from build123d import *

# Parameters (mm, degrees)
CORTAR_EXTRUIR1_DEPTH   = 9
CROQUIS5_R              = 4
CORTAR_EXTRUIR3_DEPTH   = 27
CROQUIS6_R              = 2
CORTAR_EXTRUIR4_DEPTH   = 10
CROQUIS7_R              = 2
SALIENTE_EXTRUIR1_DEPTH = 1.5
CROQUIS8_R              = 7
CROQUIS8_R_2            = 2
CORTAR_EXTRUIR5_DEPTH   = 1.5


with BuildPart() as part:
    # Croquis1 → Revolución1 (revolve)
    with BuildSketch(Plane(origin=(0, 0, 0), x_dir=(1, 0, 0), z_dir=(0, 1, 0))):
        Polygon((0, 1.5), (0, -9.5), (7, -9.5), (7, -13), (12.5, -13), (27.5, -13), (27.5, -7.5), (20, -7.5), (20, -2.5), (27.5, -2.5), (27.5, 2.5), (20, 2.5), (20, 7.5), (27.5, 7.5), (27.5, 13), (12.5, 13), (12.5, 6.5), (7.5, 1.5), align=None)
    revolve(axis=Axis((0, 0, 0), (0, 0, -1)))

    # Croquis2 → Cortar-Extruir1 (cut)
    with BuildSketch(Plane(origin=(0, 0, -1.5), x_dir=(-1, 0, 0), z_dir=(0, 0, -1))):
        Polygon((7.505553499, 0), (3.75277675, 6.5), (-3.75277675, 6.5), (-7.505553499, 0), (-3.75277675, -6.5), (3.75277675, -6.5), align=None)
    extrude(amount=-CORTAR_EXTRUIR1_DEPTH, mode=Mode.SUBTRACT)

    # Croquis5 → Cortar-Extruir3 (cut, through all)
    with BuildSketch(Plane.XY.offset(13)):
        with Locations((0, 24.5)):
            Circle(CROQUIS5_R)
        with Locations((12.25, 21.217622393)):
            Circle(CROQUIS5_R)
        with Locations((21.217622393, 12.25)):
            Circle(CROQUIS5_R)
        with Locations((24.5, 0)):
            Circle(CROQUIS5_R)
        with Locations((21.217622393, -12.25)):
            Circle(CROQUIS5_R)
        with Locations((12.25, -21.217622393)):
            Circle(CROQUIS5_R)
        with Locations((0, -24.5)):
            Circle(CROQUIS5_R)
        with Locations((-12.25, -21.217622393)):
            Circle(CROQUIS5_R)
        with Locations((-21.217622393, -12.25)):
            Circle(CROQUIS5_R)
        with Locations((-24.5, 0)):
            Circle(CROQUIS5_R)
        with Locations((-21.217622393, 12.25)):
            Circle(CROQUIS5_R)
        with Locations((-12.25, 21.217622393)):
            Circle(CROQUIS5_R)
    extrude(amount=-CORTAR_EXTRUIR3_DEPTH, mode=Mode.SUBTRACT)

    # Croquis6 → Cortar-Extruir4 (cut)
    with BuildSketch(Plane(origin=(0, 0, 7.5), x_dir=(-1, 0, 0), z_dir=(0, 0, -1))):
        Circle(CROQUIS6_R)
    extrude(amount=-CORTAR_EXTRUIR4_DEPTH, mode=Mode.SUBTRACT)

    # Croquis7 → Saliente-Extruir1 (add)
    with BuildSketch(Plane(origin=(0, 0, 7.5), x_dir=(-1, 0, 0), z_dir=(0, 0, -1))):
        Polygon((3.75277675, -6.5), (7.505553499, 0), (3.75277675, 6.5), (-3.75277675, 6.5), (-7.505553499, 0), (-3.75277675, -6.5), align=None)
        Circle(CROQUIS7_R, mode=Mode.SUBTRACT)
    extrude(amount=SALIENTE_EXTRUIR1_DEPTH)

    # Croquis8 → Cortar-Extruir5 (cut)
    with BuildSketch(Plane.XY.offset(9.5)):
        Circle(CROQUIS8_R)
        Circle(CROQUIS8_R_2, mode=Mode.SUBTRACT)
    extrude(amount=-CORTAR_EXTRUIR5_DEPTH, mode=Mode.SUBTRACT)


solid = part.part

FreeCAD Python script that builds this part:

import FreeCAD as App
import Part
import Sketcher
from FreeCAD import Vector
Q = App.Units.Quantity

doc = App.newDocument("Part")
body = doc.addObject("PartDesign::Body", "Body")

# Sketch on XZ plane
sketch1 = body.newObject("Sketcher::SketchObject", "Sketch")
sketch1.AttachmentSupport = (doc.getObject("XZ_Plane"), [""])
sketch1.MapMode = "FlatFace"
sketch1.addGeometry([
    Part.LineSegment(Vector(0, -1.5, 0), Vector(0, 9.5, 0)),  # 0
    Part.LineSegment(Vector(0, 9.5, 0), Vector(7, 9.5, 0)),  # 1
    Part.LineSegment(Vector(7, 9.5, 0), Vector(7, 13, 0)),  # 2
    Part.LineSegment(Vector(7, 13, 0), Vector(27.5, 13, 0)),  # 3
    Part.LineSegment(Vector(27.5, 13, 0), Vector(27.5, 7.5, 0)),  # 4
    Part.LineSegment(Vector(27.5, 7.5, 0), Vector(20, 7.5, 0)),  # 5
    Part.LineSegment(Vector(20, 7.5, 0), Vector(20, 2.5, 0)),  # 6
    Part.LineSegment(Vector(20, 2.5, 0), Vector(27.5, 2.5, 0)),  # 7
    Part.LineSegment(Vector(27.5, 2.5, 0), Vector(27.5, -2.5, 0)),  # 8
    Part.LineSegment(Vector(27.5, -2.5, 0), Vector(20, -2.5, 0)),  # 9
    Part.LineSegment(Vector(20, -2.5, 0), Vector(20, -7.5, 0)),  # 10
    Part.LineSegment(Vector(20, -7.5, 0), Vector(27.5, -7.5, 0)),  # 11
    Part.LineSegment(Vector(27.5, -7.5, 0), Vector(27.5, -13, 0)),  # 12
    Part.LineSegment(Vector(27.5, -13, 0), Vector(12.5, -13, 0)),  # 13
    Part.LineSegment(Vector(12.5, -13, 0), Vector(12.5, -6.5, 0)),  # 14
    Part.LineSegment(Vector(12.5, -6.5, 0), Vector(7.5, -1.5, 0)),  # 15
    Part.LineSegment(Vector(7.5, -1.5, 0), Vector(0, -1.5, 0)),  # 16
], False)
sketch1.addConstraint([
    Sketcher.Constraint("Coincident", 0, 2, 1, 1),
    Sketcher.Constraint("Coincident", 1, 2, 2, 1),
    Sketcher.Constraint("Coincident", 2, 2, 3, 1),
    Sketcher.Constraint("Coincident", 3, 2, 4, 1),
    Sketcher.Constraint("Coincident", 4, 2, 5, 1),
    Sketcher.Constraint("Coincident", 5, 2, 6, 1),
    Sketcher.Constraint("Coincident", 6, 2, 7, 1),
    Sketcher.Constraint("Coincident", 7, 2, 8, 1),
    Sketcher.Constraint("Coincident", 8, 2, 9, 1),
    Sketcher.Constraint("Coincident", 9, 2, 10, 1),
    Sketcher.Constraint("Coincident", 10, 2, 11, 1),
    Sketcher.Constraint("Coincident", 11, 2, 12, 1),
    Sketcher.Constraint("Coincident", 12, 2, 13, 1),
    Sketcher.Constraint("Coincident", 13, 2, 14, 1),
    Sketcher.Constraint("Coincident", 14, 2, 15, 1),
    Sketcher.Constraint("Coincident", 15, 2, 16, 1),
    Sketcher.Constraint("Coincident", 16, 2, 0, 1),
    Sketcher.Constraint("Vertical", 0),
    Sketcher.Constraint("Horizontal", 1),
    Sketcher.Constraint("Vertical", 2),
    Sketcher.Constraint("Horizontal", 3),
    Sketcher.Constraint("Vertical", 4),
    Sketcher.Constraint("Horizontal", 5),
    Sketcher.Constraint("Vertical", 6),
    Sketcher.Constraint("Horizontal", 7),
    Sketcher.Constraint("Vertical", 8),
    Sketcher.Constraint("Horizontal", 9),
    Sketcher.Constraint("Vertical", 10),
    Sketcher.Constraint("Horizontal", 11),
    Sketcher.Constraint("Vertical", 12),
    Sketcher.Constraint("Horizontal", 13),
    Sketcher.Constraint("Vertical", 14),
    Sketcher.Constraint("Horizontal", 16),
    Sketcher.Constraint("Symmetric", 6, 2, 9, 2, -1),
    Sketcher.Constraint("Symmetric", 4, 2, 11, 2, -1),
    Sketcher.Constraint("PointOnObject", 0, 2, -2),
    Sketcher.Constraint("Vertical", 4, 2, 7, 2),
    Sketcher.Constraint("Equal", 11, 16),
    Sketcher.Constraint("Equal", 6, 8),
    Sketcher.Constraint("Equal", 4, 12),
    Sketcher.Constraint("DistanceX", 1, 1, 1, 2, 7.0),
    Sketcher.Constraint("DistanceX", 13, 2, 13, 1, 15.0),
    Sketcher.Constraint("DistanceY", 0, 1, 0, 2, 11.0),
    Sketcher.Constraint("DistanceY", 6, 2, 6, 1, 5.0),
    Sketcher.Constraint("Angle", 15, Q("135 deg")),
    Sketcher.Constraint("DistanceX", 3, 1, 3, 2, 20.5),
    Sketcher.Constraint("DistanceX", 5, 2, 5, 1, 7.5),
    Sketcher.Constraint("DistanceY", 2, 1, 2, 2, 3.5),
    Sketcher.Constraint("DistanceY", 4, 2, 4, 1, 5.5),
])
revolution = body.newObject("PartDesign::Revolution", "Revolution")
revolution.Profile = sketch1
revolution.ReferenceAxis = (sketch1, ["V_Axis"])
revolution.Angle = 360

# Sketch on XY plane
sketch2 = body.newObject("Sketcher::SketchObject", "Sketch001")
sketch2.AttachmentSupport = (doc.getObject("XY_Plane"), [""])
sketch2.MapMode = "FlatFace"
sketch2.AttachmentOffset = App.Placement(Vector(0, 0, -1.5), App.Rotation())
sketch2.addGeometry([
    Part.LineSegment(Vector(-8, 0, 0), Vector(-4, 6, 0)),  # 0
    Part.LineSegment(Vector(-4, 6, 0), Vector(4, 6, 0)),  # 1
    Part.LineSegment(Vector(4, 6, 0), Vector(8, 0, 0)),  # 2
    Part.LineSegment(Vector(8, 0, 0), Vector(4, -6, 0)),  # 3
    Part.LineSegment(Vector(4, -6, 0), Vector(-4, -6, 0)),  # 4
    Part.LineSegment(Vector(-4, -6, 0), Vector(-8, 0, 0)),  # 5
], False)
sketch2.addConstraint([
    Sketcher.Constraint("Coincident", 0, 2, 1, 1),
    Sketcher.Constraint("Coincident", 1, 2, 2, 1),
    Sketcher.Constraint("Coincident", 2, 2, 3, 1),
    Sketcher.Constraint("Coincident", 3, 2, 4, 1),
    Sketcher.Constraint("Coincident", 4, 2, 5, 1),
    Sketcher.Constraint("Coincident", 5, 2, 0, 1),
    Sketcher.Constraint("Horizontal", 1),
    Sketcher.Constraint("Horizontal", 4),
    Sketcher.Constraint("Symmetric", 0, 2, 3, 2, -1, 1),
    Sketcher.Constraint("Symmetric", 2, 2, 5, 2, -1, 1),
    Sketcher.Constraint("PointOnObject", 2, 2, -1),
    Sketcher.Constraint("Parallel", 2, 5),
    Sketcher.Constraint("Vertical", 1, 2, 3, 2),
    Sketcher.Constraint("Angle", 0, Q("60 deg")),
    Sketcher.Constraint("DistanceY", 3, 2, 1, 2, 13.0),
    Sketcher.Constraint("DistanceX", 1, 1, 1, 2, 7.505554),
])
pocket1 = body.newObject("PartDesign::Pocket", "Pocket")
pocket1.Profile = sketch2
pocket1.Length = 9
pocket1.Reversed = True

# Sketch on XY plane
sketch3 = body.newObject("Sketcher::SketchObject", "Sketch002")
sketch3.AttachmentSupport = (doc.getObject("XY_Plane"), [""])
sketch3.MapMode = "FlatFace"
sketch3.AttachmentOffset = App.Placement(Vector(0, 0, 13), App.Rotation())
sketch3.addGeometry([
    Part.Circle(Vector(0, 24.5, 0), Vector(0, 0, 1), 4),  # 0
    Part.Circle(Vector(12.2, 21.2, 0), Vector(0, 0, 1), 4),  # 1
    Part.Circle(Vector(21.2, 12.2, 0), Vector(0, 0, 1), 4),  # 2
    Part.Circle(Vector(24.5, 0, 0), Vector(0, 0, 1), 4),  # 3
    Part.Circle(Vector(21.2, -12.2, 0), Vector(0, 0, 1), 4),  # 4
    Part.Circle(Vector(12.2, -21.2, 0), Vector(0, 0, 1), 4),  # 5
    Part.Circle(Vector(0, -24.5, 0), Vector(0, 0, 1), 4),  # 6
    Part.Circle(Vector(-12.2, -21.2, 0), Vector(0, 0, 1), 4),  # 7
    Part.Circle(Vector(-21.2, -12.2, 0), Vector(0, 0, 1), 4),  # 8
    Part.Circle(Vector(-24.5, 0, 0), Vector(0, 0, 1), 4),  # 9
    Part.Circle(Vector(-21.2, 12.2, 0), Vector(0, 0, 1), 4),  # 10
    Part.Circle(Vector(-12.2, 21.2, 0), Vector(0, 0, 1), 4),  # 11
], False)
sketch3.addConstraint([
    Sketcher.Constraint("Equal", 0, 1),
    Sketcher.Constraint("Equal", 1, 2),
    Sketcher.Constraint("Equal", 2, 3),
    Sketcher.Constraint("Equal", 3, 4),
    Sketcher.Constraint("Equal", 4, 5),
    Sketcher.Constraint("Equal", 5, 6),
    Sketcher.Constraint("Equal", 6, 7),
    Sketcher.Constraint("Equal", 7, 8),
    Sketcher.Constraint("Equal", 8, 9),
    Sketcher.Constraint("Equal", 9, 10),
    Sketcher.Constraint("Equal", 10, 11),
    Sketcher.Constraint("Symmetric", 0, 3, 6, 3, -1, 1),
    Sketcher.Constraint("Symmetric", 1, 3, 7, 3, -1, 1),
    Sketcher.Constraint("Symmetric", 2, 3, 8, 3, -1, 1),
    Sketcher.Constraint("Symmetric", 3, 3, 9, 3, -1, 1),
    Sketcher.Constraint("Symmetric", 4, 3, 10, 3, -1, 1),
    Sketcher.Constraint("Symmetric", 5, 3, 11, 3, -1, 1),
    Sketcher.Constraint("Symmetric", 5, 3, 7, 3, -2),
    Sketcher.Constraint("Symmetric", 4, 3, 8, 3, -2),
    Sketcher.Constraint("PointOnObject", 0, 3, -2),
    Sketcher.Constraint("PointOnObject", 3, 3, -1),
    Sketcher.Constraint("Diameter", 0, 8.0),
    Sketcher.Constraint("DistanceY", -1, 1, 0, 3, 24.5),
    Sketcher.Constraint("DistanceX", -1, 1, 3, 3, 24.5),
    Sketcher.Constraint("DistanceY", 4, 3, 2, 3, 24.5),
    Sketcher.Constraint("DistanceX", 7, 3, 5, 3, 24.5),
    Sketcher.Constraint("DistanceY", -1, 1, 1, 3, 21.217622),
    Sketcher.Constraint("DistanceX", -1, 1, 2, 3, 21.217622),
])
pocket2 = body.newObject("PartDesign::Pocket", "Pocket001")
pocket2.Profile = sketch3
pocket2.Type = "ThroughAll"

# Sketch on XY plane
sketch4 = body.newObject("Sketcher::SketchObject", "Sketch003")
sketch4.AttachmentSupport = (doc.getObject("XY_Plane"), [""])
sketch4.MapMode = "FlatFace"
sketch4.AttachmentOffset = App.Placement(Vector(0, 0, 7.5), App.Rotation())
sketch4.addGeometry(Part.Circle(Vector(0, 0, 0), Vector(0, 0, 1), 2), False)
sketch4.addConstraint([
    Sketcher.Constraint("Coincident", 0, 3, -1, 1),
    Sketcher.Constraint("Diameter", 0, 4.0),
])
pocket3 = body.newObject("PartDesign::Pocket", "Pocket002")
pocket3.Profile = sketch4
pocket3.Length = 10
pocket3.Reversed = True

# Sketch on XY plane
sketch5 = body.newObject("Sketcher::SketchObject", "Sketch004")
sketch5.AttachmentSupport = (doc.getObject("XY_Plane"), [""])
sketch5.MapMode = "FlatFace"
sketch5.AttachmentOffset = App.Placement(Vector(0, 0, 7.5), App.Rotation())
sketch5.addGeometry([
    Part.LineSegment(Vector(-3.8, -6.5, 0), Vector(-7.5, 0, 0)),  # 0
    Part.LineSegment(Vector(-7.5, 0, 0), Vector(-3.8, 6.5, 0)),  # 1
    Part.LineSegment(Vector(-3.8, 6.5, 0), Vector(3.8, 6.5, 0)),  # 2
    Part.LineSegment(Vector(3.8, 6.5, 0), Vector(7.5, 0, 0)),  # 3
    Part.LineSegment(Vector(7.5, 0, 0), Vector(3.8, -6.5, 0)),  # 4
    Part.LineSegment(Vector(3.8, -6.5, 0), Vector(-3.8, -6.5, 0)),  # 5
    Part.Circle(Vector(0, 0, 0), Vector(0, 0, 1), 2),  # 6
], False)
sketch5.addConstraint([
    Sketcher.Constraint("Coincident", 0, 2, 1, 1),
    Sketcher.Constraint("Coincident", 1, 2, 2, 1),
    Sketcher.Constraint("Coincident", 2, 2, 3, 1),
    Sketcher.Constraint("Coincident", 3, 2, 4, 1),
    Sketcher.Constraint("Coincident", 4, 2, 5, 1),
    Sketcher.Constraint("Coincident", 5, 2, 0, 1),
    Sketcher.Constraint("Horizontal", 2),
    Sketcher.Constraint("Horizontal", 5),
    Sketcher.Constraint("Coincident", 6, 3, -1, 1),
    Sketcher.Constraint("Symmetric", 0, 2, 3, 2, -1, 1),
    Sketcher.Constraint("Symmetric", 1, 2, 4, 2, -1, 1),
    Sketcher.Constraint("PointOnObject", 0, 2, -1),
    Sketcher.Constraint("Parallel", 0, 3),
    Sketcher.Constraint("Vertical", 2, 2, 4, 2),
    Sketcher.Constraint("Diameter", 6, 4.0),
    Sketcher.Constraint("Angle", 0, Q("120 deg")),
    Sketcher.Constraint("DistanceY", 4, 2, 2, 2, 13.0),
    Sketcher.Constraint("DistanceX", 2, 1, 2, 2, 7.505554),
])
pad1 = body.newObject("PartDesign::Pad", "Pad")
pad1.Profile = sketch5
pad1.Length = 1.5
pad1.Reversed = True

# Sketch on XY plane
sketch6 = body.newObject("Sketcher::SketchObject", "Sketch005")
sketch6.AttachmentSupport = (doc.getObject("XY_Plane"), [""])
sketch6.MapMode = "FlatFace"
sketch6.AttachmentOffset = App.Placement(Vector(0, 0, 9.5), App.Rotation())
sketch6.addGeometry([
    Part.Circle(Vector(0, 0, 0), Vector(0, 0, 1), 7),
    Part.Circle(Vector(0, 0, 0), Vector(0, 0, 1), 2),
], False)
sketch6.addConstraint([
    Sketcher.Constraint("Coincident", 0, 3, -1, 1),
    Sketcher.Constraint("Coincident", 1, 3, -1, 1),
    Sketcher.Constraint("Diameter", 0, 14.0),
    Sketcher.Constraint("Diameter", 1, 4.0),
])
pocket4 = body.newObject("PartDesign::Pocket", "Pocket003")
pocket4.Profile = sketch6
pocket4.Length = 1.5

doc.recompute()
